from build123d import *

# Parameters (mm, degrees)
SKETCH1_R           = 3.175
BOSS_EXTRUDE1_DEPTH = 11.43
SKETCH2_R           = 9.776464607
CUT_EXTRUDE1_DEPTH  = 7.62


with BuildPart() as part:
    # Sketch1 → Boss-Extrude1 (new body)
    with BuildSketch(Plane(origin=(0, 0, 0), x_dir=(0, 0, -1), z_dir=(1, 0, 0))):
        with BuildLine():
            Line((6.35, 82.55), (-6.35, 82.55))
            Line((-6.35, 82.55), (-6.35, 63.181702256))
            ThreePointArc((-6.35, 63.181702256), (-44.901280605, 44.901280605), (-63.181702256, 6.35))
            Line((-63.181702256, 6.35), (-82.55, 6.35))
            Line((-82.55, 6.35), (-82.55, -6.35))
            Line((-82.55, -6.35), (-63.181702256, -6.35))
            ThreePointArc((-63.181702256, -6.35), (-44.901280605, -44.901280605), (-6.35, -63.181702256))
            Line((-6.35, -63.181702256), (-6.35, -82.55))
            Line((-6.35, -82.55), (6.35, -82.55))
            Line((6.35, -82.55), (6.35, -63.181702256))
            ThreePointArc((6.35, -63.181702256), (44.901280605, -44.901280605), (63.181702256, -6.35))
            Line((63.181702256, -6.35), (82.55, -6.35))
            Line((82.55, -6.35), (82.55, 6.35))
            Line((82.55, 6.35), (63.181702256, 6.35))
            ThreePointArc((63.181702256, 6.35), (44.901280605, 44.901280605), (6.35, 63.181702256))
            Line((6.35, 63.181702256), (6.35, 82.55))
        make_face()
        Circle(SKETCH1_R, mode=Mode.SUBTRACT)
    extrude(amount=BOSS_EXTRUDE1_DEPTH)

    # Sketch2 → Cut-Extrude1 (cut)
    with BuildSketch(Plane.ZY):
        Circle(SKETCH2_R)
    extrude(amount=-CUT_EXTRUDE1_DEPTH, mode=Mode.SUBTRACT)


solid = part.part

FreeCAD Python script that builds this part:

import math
import FreeCAD as App
import Part
import Sketcher
Q = App.Units.Quantity

doc = App.newDocument("Part")
body = doc.addObject("PartDesign::Body", "Body")

sketch1 = doc.addObject("Sketcher::SketchObject", "Sketch")
body.addObject(sketch1)
sketch1.AttachmentSupport = (doc.YZ_Plane, [""])
sketch1.MapMode = "FlatFace"
sketch1.addGeometry(Part.LineSegment(App.Vector(82.55, -6.35, 0), App.Vector(82.55, 6.35, 0)), False)
sketch1.addGeometry(Part.LineSegment(App.Vector(82.55, 6.35, 0), App.Vector(63.181702, 6.35, 0)), False)
sketch1.addGeometry(Part.ArcOfCircle(Part.Circle(App.Vector(0, 0, 0), App.Vector(0, 0, 1), 63.5), math.radians(5.73917), math.radians(84.26083)), False)
sketch1.addGeometry(Part.LineSegment(App.Vector(6.35, 63.181702, 0), App.Vector(6.35, 82.55, 0)), False)
sketch1.addGeometry(Part.LineSegment(App.Vector(6.35, 82.55, 0), App.Vector(-6.35, 82.55, 0)), False)
sketch1.addGeometry(Part.LineSegment(App.Vector(-6.35, 82.55, 0), App.Vector(-6.35, 63.181702, 0)), False)
sketch1.addGeometry(Part.ArcOfCircle(Part.Circle(App.Vector(0, 0, 0), App.Vector(0, 0, 1), 63.5), math.radians(95.73917), math.radians(174.26083)), False)
sketch1.addGeometry(Part.LineSegment(App.Vector(-63.181702, 6.35, 0), App.Vector(-82.55, 6.35, 0)), False)
sketch1.addGeometry(Part.LineSegment(App.Vector(-82.55, 6.35, 0), App.Vector(-82.55, -6.35, 0)), False)
sketch1.addGeometry(Part.LineSegment(App.Vector(-82.55, -6.35, 0), App.Vector(-63.181702, -6.35, 0)), False)
sketch1.addGeometry(Part.ArcOfCircle(Part.Circle(App.Vector(0, 0, 0), App.Vector(0, 0, 1), 63.5), math.radians(-174.26083), math.radians(-95.73917)), False)
sketch1.addGeometry(Part.LineSegment(App.Vector(-6.35, -63.181702, 0), App.Vector(-6.35, -82.55, 0)), False)
sketch1.addGeometry(Part.LineSegment(App.Vector(-6.35, -82.55, 0), App.Vector(6.35, -82.55, 0)), False)
sketch1.addGeometry(Part.LineSegment(App.Vector(6.35, -82.55, 0), App.Vector(6.35, -63.181702, 0)), False)
sketch1.addGeometry(Part.ArcOfCircle(Part.Circle(App.Vector(0, 0, 0), App.Vector(0, 0, 1), 63.5), math.radians(-84.26083), math.radians(-5.73917)), False)
sketch1.addGeometry(Part.LineSegment(App.Vector(63.181702, -6.35, 0), App.Vector(82.55, -6.35, 0)), False)
sketch1.addGeometry(Part.Circle(App.Vector(0, 0, 0), App.Vector(0, 0, 1), 3.175), False)
sketch1.addConstraint(Sketcher.Constraint("Coincident", 0, 2, 1, 1))
sketch1.addConstraint(Sketcher.Constraint("Coincident", 1, 2, 2, 1))
sketch1.addConstraint(Sketcher.Constraint("Coincident", 2, 2, 3, 1))
sketch1.addConstraint(Sketcher.Constraint("Coincident", 3, 2, 4, 1))
sketch1.addConstraint(Sketcher.Constraint("Coincident", 4, 2, 5, 1))
sketch1.addConstraint(Sketcher.Constraint("Coincident", 5, 2, 6, 1))
sketch1.addConstraint(Sketcher.Constraint("Coincident", 6, 2, 7, 1))
sketch1.addConstraint(Sketcher.Constraint("Coincident", 7, 2, 8, 1))
sketch1.addConstraint(Sketcher.Constraint("Coincident", 8, 2, 9, 1))
sketch1.addConstraint(Sketcher.Constraint("Coincident", 9, 2, 10, 1))
sketch1.addConstraint(Sketcher.Constraint("Coincident", 10, 2, 11, 1))
sketch1.addConstraint(Sketcher.Constraint("Coincident", 11, 2, 12, 1))
sketch1.addConstraint(Sketcher.Constraint("Coincident", 12, 2, 13, 1))
sketch1.addConstraint(Sketcher.Constraint("Coincident", 13, 2, 14, 1))
sketch1.addConstraint(Sketcher.Constraint("Coincident", 14, 2, 15, 1))
sketch1.addConstraint(Sketcher.Constraint("Coincident", 15, 2, 0, 1))
sketch1.addConstraint(Sketcher.Constraint("Vertical", 0))
sketch1.addConstraint(Sketcher.Constraint("Horizontal", 1))
sketch1.addConstraint(Sketcher.Constraint("Vertical", 3))
sketch1.addConstraint(Sketcher.Constraint("Horizontal", 4))
sketch1.addConstraint(Sketcher.Constraint("Vertical", 5))
sketch1.addConstraint(Sketcher.Constraint("Horizontal", 7))
sketch1.addConstraint(Sketcher.Constraint("Vertical", 8))
sketch1.addConstraint(Sketcher.Constraint("Horizontal", 9))
sketch1.addConstraint(Sketcher.Constraint("Vertical", 11))
sketch1.addConstraint(Sketcher.Constraint("Horizontal", 12))
sketch1.addConstraint(Sketcher.Constraint("Vertical", 13))
sketch1.addConstraint(Sketcher.Constraint("Horizontal", 15))
sketch1.addConstraint(Sketcher.Constraint("Coincident", 2, 3, -1, 1))
sketch1.addConstraint(Sketcher.Constraint("Coincident", 6, 3, -1, 1))
sketch1.addConstraint(Sketcher.Constraint("Coincident", 10, 3, -1, 1))
sketch1.addConstraint(Sketcher.Constraint("Coincident", 14, 3, -1, 1))
sketch1.addConstraint(Sketcher.Constraint("Coincident", 16, 3, -1, 1))
sketch1.addConstraint(Sketcher.Constraint("Equal", 2, 6))
sketch1.addConstraint(Sketcher.Constraint("Equal", 6, 10))
sketch1.addConstraint(Sketcher.Constraint("Equal", 10, 14))
sketch1.addConstraint(Sketcher.Constraint("Symmetric", 0, 2, 8, 2, -1, 1))
sketch1.addConstraint(Sketcher.Constraint("Symmetric", 3, 2, 11, 2, -1, 1))
sketch1.addConstraint(Sketcher.Constraint("Horizontal", 2, 2, 5, 2))
sketch1.addConstraint(Sketcher.Constraint("Horizontal", 1, 2, 6, 2))
sketch1.addConstraint(Sketcher.Constraint("Horizontal", 10, 2, 13, 2))
sketch1.addConstraint(Sketcher.Constraint("Horizontal", 9, 2, 14, 2))
sketch1.addConstraint(Sketcher.Constraint("Equal", 12, 0))
sketch1.addConstraint(Sketcher.Constraint("Equal", 15, 3))
sketch1.addConstraint(Sketcher.Constraint("Radius", 2, Q("2.5 in")))
sketch1.addConstraint(Sketcher.Constraint("Diameter", 16, Q("0.25 in")))
sketch1.addConstraint(Sketcher.Constraint("DistanceX", 4, 2, 4, 1, Q("0.5 in")))
sketch1.addConstraint(Sketcher.Constraint("DistanceX", -1, 1, 0, 2, Q("3.25 in")))
pad1 = doc.addObject("PartDesign::Pad", "Pad")
body.addObject(pad1)
pad1.Profile = sketch1
pad1.Length = Q("0.45 in")

sketch2 = doc.addObject("Sketcher::SketchObject", "Sketch001")
body.addObject(sketch2)
sketch2.AttachmentSupport = (doc.YZ_Plane, [""])
sketch2.MapMode = "FlatFace"
sketch2.addGeometry(Part.Circle(App.Vector(0, 0, 0), App.Vector(0, 0, 1), 9.776465), False)
sketch2.addConstraint(Sketcher.Constraint("Coincident", 0, 3, -1, 1))
sketch2.addConstraint(Sketcher.Constraint("Diameter", 0, Q("19.552929 mm")))
pocket1 = doc.addObject("PartDesign::Pocket", "Pocket")
body.addObject(pocket1)
pocket1.Profile = sketch2
pocket1.Length = Q("0.3 in")
pocket1.Reversed = True

doc.recompute()
